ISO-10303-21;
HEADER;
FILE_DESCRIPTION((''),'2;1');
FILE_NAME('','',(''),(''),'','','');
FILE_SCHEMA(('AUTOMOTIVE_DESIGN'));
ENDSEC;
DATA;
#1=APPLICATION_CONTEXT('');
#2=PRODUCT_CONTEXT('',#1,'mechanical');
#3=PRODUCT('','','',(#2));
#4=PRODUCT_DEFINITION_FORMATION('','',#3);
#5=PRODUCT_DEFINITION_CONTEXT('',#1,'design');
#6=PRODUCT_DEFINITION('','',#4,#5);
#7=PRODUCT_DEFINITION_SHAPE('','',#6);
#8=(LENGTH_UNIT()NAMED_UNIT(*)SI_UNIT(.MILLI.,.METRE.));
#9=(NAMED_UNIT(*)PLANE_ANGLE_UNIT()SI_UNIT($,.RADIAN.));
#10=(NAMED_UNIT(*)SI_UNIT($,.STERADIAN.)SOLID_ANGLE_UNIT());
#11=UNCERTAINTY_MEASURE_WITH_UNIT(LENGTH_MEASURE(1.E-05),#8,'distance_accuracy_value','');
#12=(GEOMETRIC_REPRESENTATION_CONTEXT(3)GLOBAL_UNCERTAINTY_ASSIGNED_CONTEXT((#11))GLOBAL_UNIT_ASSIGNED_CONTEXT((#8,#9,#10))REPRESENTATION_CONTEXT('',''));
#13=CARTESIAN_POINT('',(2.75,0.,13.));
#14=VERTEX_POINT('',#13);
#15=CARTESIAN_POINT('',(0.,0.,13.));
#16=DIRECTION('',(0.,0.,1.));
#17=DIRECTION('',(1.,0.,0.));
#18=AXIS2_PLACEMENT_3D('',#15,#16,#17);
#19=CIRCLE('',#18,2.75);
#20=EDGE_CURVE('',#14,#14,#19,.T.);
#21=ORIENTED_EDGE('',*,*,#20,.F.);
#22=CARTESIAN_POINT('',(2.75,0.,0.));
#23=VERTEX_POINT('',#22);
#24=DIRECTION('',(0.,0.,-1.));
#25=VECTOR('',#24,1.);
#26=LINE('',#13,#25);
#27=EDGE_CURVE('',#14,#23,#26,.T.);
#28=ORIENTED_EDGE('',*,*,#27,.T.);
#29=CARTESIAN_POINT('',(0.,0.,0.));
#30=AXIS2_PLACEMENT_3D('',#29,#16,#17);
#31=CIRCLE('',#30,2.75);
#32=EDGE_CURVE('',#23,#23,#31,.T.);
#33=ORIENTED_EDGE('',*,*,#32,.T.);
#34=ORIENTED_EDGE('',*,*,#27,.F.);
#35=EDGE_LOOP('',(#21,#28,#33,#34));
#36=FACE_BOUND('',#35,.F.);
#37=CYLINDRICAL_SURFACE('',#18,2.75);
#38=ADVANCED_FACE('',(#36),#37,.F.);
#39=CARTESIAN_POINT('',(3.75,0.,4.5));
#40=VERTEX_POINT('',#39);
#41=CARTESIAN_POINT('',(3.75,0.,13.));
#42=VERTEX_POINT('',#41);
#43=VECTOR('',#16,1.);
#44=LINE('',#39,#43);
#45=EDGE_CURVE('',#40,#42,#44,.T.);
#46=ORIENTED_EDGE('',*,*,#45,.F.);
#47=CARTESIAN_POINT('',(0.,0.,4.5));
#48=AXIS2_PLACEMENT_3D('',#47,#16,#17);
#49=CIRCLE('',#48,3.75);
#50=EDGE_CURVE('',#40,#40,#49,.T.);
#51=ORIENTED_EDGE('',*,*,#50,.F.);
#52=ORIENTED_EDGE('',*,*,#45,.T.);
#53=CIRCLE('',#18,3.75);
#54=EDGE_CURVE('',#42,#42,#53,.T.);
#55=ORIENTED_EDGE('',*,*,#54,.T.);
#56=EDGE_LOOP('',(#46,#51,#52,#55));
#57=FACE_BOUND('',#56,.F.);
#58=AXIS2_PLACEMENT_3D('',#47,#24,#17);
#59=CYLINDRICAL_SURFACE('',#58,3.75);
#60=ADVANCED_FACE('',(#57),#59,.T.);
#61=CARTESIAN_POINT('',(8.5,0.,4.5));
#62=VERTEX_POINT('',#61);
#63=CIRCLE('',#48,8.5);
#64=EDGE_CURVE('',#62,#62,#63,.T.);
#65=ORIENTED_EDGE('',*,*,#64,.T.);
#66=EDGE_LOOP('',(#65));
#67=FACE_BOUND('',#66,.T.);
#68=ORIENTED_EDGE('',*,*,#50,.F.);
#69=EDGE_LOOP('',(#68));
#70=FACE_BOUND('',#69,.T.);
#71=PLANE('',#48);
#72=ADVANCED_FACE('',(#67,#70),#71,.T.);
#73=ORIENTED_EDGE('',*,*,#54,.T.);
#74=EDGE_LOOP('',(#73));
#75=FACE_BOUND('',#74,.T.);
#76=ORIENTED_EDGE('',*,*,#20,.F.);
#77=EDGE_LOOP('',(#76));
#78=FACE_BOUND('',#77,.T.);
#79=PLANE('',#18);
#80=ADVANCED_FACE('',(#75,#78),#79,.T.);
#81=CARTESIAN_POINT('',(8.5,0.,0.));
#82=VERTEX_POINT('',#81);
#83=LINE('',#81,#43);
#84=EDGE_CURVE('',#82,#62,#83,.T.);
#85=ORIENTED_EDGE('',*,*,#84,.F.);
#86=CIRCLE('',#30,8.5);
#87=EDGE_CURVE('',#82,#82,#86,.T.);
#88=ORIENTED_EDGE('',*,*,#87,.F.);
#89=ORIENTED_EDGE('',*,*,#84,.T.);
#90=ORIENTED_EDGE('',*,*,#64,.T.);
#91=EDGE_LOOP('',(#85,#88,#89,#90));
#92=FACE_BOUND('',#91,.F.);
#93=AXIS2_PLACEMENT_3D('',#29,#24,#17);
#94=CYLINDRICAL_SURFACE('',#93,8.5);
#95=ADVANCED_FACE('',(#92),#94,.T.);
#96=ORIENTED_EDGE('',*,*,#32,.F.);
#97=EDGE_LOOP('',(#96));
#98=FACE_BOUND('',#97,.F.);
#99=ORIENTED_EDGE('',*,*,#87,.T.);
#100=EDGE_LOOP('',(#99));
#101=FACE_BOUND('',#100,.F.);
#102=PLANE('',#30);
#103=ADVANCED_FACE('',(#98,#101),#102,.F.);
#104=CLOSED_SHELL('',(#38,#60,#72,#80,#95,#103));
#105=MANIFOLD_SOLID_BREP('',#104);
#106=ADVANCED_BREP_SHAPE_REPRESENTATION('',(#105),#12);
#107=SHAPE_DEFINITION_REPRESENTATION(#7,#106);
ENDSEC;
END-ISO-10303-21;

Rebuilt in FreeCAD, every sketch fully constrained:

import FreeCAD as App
import Part
import Sketcher

V = App.Vector

doc = App.newDocument("Part")
body = doc.addObject("PartDesign::Body", "Body")

# Sketch on XY plane
sketch1 = body.newObject("Sketcher::SketchObject", "Sketch")
sketch1.AttachmentSupport = (doc.getObject("XY_Plane"), [""])
sketch1.MapMode = "FlatFace"
sketch1.addGeometry(Part.Circle(V(0, 0, 0), V(0, 0, 1), 8.5), False)
sketch1.addConstraint([
    Sketcher.Constraint("Coincident", 0, 3, -1, 1),
    Sketcher.Constraint("Diameter", 0, 17.0),
])
pad1 = body.newObject("PartDesign::Pad", "Pad")
pad1.Profile = sketch1
pad1.Length = 4.5

# Sketch on XY plane
sketch2 = body.newObject("Sketcher::SketchObject", "Sketch001")
sketch2.AttachmentSupport = (doc.getObject("XY_Plane"), [""])
sketch2.MapMode = "FlatFace"
sketch2.AttachmentOffset = App.Placement(V(0, 0, 4.5), App.Rotation())
sketch2.addGeometry(Part.Circle(V(0, 0, 0), V(0, 0, 1), 3.75), False)
sketch2.addConstraint([
    Sketcher.Constraint("Coincident", 0, 3, -1, 1),
    Sketcher.Constraint("Diameter", 0, 7.5),
])
pad2 = body.newObject("PartDesign::Pad", "Pad001")
pad2.Profile = sketch2
pad2.Length = 8.5

# Sketch on XY plane
sketch3 = body.newObject("Sketcher::SketchObject", "Sketch002")
sketch3.AttachmentSupport = (doc.getObject("XY_Plane"), [""])
sketch3.MapMode = "FlatFace"
sketch3.AttachmentOffset = App.Placement(V(0, 0, 13), App.Rotation())
sketch3.addGeometry(Part.Circle(V(0, 0, 0), V(0, 0, 1), 2.75), False)
sketch3.addConstraint([
    Sketcher.Constraint("Coincident", 0, 3, -1, 1),
    Sketcher.Constraint("Diameter", 0, 5.5),
])
pocket1 = body.newObject("PartDesign::Pocket", "Pocket")
pocket1.Profile = sketch3
pocket1.Type = "ThroughAll"

doc.recompute()
